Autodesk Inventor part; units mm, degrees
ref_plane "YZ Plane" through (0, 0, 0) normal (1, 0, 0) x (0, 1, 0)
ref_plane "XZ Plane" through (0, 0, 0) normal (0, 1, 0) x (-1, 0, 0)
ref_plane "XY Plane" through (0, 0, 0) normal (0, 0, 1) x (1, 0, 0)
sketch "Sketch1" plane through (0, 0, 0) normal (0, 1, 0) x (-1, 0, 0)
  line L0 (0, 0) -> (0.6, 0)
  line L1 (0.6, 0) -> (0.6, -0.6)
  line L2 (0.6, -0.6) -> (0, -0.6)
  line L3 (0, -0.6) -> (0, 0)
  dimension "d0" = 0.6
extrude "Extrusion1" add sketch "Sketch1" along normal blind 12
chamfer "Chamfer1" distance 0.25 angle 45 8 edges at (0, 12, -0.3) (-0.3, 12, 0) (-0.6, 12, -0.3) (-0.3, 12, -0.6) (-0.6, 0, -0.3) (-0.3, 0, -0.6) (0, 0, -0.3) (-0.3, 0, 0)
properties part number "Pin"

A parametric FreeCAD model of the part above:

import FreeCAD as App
import Part
import Sketcher

V = App.Vector


def edges_at(feature, points):
    """Names of the edges that pass closest to the given points."""
    edges = feature.Shape.Edges
    near = lambda p: min(range(len(edges)), key=lambda i: edges[i].distToShape(Part.Vertex(*p))[0])
    return sorted({f"Edge{near(p) + 1}" for p in points})


def add_polygon(sketch, points):
    """Adds a closed chain of lines whose ends are joined by coincident constraints."""
    first, n = sketch.GeometryCount, len(points)
    for a, b in zip(points, points[1:] + points[:1]):
        sketch.addGeometry(Part.LineSegment(App.Vector(*a, 0), App.Vector(*b, 0)), False)
    for i in range(n):
        sketch.addConstraint(Sketcher.Constraint("Coincident", first + i, 2, first + (i + 1) % n, 1))

doc = App.newDocument("Part")
params = doc.addObject("Spreadsheet::Sheet", "Params")
for row, (alias, value) in enumerate([
    ("sketch1_width", "0.6 mm"),
    ("pad1_length", "12 mm"),
    ("chamfer_size", "0.25 mm"),
], start=1):
    params.set(f"A{row}", alias)
    params.set(f"B{row}", "=" + value)
    params.setAlias(f"B{row}", alias)

body = doc.addObject("PartDesign::Body", "Body")

# Sketch on XZ plane
sketch1 = body.newObject("Sketcher::SketchObject", "Sketch")
sketch1.AttachmentSupport = (doc.getObject("XZ_Plane"), [""])
sketch1.MapMode = "FlatFace"
add_polygon(sketch1, [(-0.6, 0), (0, 0), (0, -0.6), (-0.6, -0.6)])  # lines 0-3
sketch1.addConstraint([
    Sketcher.Constraint("Horizontal", 0),
    Sketcher.Constraint("Vertical", 1),
    Sketcher.Constraint("Horizontal", 2),
    Sketcher.Constraint("Vertical", 3),
    Sketcher.Constraint("Coincident", 0, 2, -1, 1),
    Sketcher.Constraint("Equal", 2, 1),
    Sketcher.Constraint("DistanceX", 0, 1, 0, 2, 0.6),
])
sketch1.setExpression("Constraints[10]", "Params.sketch1_width")
pad1 = body.newObject("PartDesign::Pad", "Pad")
pad1.Profile = sketch1
pad1.setExpression("Length", "Params.pad1_length")
pad1.Reversed = True
doc.recompute()

chamfer = body.newObject("PartDesign::Chamfer", "Chamfer")
chamfer.Base = (pad1, edges_at(pad1, [
    (0, 12, -0.3),
    (-0.3, 12, 0),
    (-0.6, 12, -0.3),
    (-0.3, 12, -0.6),
    (-0.6, 0, -0.3),
    (-0.3, 0, -0.6),
    (0, 0, -0.3),
    (-0.3, 0, 0),
]))
chamfer.setExpression("Size", "Params.chamfer_size")

doc.recompute()
